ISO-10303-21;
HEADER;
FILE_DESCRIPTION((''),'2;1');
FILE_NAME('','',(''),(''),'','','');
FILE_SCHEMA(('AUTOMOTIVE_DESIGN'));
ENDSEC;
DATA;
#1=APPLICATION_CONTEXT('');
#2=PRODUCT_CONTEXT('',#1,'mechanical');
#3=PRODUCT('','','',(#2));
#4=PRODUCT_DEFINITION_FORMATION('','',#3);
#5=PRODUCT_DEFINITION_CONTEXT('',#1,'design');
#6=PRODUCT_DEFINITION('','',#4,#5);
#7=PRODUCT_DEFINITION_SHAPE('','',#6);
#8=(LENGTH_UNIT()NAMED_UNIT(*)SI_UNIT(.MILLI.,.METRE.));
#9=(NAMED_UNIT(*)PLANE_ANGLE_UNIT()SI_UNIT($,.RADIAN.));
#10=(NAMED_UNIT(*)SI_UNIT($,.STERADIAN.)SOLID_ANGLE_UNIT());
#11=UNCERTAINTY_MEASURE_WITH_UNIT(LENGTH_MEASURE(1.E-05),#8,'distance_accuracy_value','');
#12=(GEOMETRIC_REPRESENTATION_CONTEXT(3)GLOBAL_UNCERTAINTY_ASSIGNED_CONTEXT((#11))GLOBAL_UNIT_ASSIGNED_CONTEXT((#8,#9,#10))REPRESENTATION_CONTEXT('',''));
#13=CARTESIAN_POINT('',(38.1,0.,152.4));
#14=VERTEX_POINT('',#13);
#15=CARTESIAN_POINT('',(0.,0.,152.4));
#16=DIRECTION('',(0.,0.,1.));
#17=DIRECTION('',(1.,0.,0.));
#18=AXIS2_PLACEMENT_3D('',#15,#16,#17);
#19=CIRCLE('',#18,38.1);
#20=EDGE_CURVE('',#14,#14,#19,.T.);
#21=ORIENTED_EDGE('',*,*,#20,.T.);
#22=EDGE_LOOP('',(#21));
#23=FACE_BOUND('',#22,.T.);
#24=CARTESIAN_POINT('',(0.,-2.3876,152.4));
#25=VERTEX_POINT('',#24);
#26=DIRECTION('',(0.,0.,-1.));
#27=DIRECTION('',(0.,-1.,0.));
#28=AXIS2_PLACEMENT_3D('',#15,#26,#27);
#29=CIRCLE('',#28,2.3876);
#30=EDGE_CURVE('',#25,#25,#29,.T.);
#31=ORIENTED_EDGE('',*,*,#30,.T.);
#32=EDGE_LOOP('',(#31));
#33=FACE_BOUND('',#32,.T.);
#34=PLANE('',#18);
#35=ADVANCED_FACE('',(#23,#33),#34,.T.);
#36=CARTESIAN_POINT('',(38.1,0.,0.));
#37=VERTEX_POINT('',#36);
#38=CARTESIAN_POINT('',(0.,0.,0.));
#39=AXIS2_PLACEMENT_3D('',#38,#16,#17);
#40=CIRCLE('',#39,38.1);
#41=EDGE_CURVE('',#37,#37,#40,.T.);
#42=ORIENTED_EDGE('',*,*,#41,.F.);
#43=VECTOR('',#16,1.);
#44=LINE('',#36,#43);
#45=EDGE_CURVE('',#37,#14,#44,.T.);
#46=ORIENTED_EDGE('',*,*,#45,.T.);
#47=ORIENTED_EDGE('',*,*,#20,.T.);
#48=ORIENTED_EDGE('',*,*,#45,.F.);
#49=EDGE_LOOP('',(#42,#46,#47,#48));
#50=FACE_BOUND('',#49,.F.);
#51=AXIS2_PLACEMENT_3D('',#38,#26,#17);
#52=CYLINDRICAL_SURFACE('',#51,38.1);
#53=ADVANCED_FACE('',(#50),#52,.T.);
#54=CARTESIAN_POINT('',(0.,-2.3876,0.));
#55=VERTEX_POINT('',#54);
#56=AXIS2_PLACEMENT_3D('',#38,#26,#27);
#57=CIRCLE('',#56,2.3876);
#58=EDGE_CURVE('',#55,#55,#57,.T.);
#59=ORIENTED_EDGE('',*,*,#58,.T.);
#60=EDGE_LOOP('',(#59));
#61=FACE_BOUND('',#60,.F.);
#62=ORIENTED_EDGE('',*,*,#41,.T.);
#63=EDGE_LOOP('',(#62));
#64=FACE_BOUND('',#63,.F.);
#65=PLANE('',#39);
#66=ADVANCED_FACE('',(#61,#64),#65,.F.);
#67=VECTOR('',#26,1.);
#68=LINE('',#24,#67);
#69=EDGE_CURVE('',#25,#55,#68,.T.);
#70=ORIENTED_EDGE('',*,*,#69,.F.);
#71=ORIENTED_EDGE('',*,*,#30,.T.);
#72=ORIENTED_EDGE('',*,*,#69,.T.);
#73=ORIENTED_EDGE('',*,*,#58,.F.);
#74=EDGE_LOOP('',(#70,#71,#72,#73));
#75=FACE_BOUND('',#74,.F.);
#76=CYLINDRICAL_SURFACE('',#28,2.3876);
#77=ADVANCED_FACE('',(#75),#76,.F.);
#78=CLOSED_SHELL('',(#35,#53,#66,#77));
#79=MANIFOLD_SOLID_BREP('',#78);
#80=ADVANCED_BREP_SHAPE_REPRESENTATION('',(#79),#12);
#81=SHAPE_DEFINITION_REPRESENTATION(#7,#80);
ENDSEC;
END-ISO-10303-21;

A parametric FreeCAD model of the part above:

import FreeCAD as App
import Part
import Sketcher
Q = App.Units.Quantity

doc = App.newDocument("Part")
body = doc.addObject("PartDesign::Body", "Body")

# Sketch on XY plane
sketch1 = doc.addObject("Sketcher::SketchObject", "Sketch")
body.addObject(sketch1)
sketch1.AttachmentSupport = (doc.XY_Plane, [""])
sketch1.MapMode = "FlatFace"
sketch1.addGeometry(Part.Circle(App.Vector(0, 0, 0), App.Vector(0, 0, 1), 38), False)
sketch1.addConstraint(Sketcher.Constraint("Coincident", 0, 3, -1, 1))
sketch1.addConstraint(Sketcher.Constraint("Diameter", 0, Q("3 in")))
pad1 = doc.addObject("PartDesign::Pad", "Pad")
body.addObject(pad1)
pad1.Profile = sketch1
pad1.Length = Q("6 in")

# Sketch on XY plane
sketch2 = doc.addObject("Sketcher::SketchObject", "Sketch001")
body.addObject(sketch2)
sketch2.AttachmentSupport = (doc.XY_Plane, [""])
sketch2.MapMode = "FlatFace"
sketch2.AttachmentOffset = App.Placement(App.Vector(0, 0, 6 * 25.4), App.Rotation())
sketch2.addGeometry(Part.Circle(App.Vector(0, 0, 0), App.Vector(0, 0, 1), 2.4), False)
sketch2.addConstraint(Sketcher.Constraint("Coincident", 0, 3, -1, 1))
sketch2.addConstraint(Sketcher.Constraint("Diameter", 0, Q("0.188 in")))
doc.recompute()
hole = doc.addObject("PartDesign::Hole", "Hole")
body.addObject(hole)
hole.Profile = sketch2
hole.ThreadType = "None"
hole.Diameter = Q("0.188 in")
hole.DepthType = "ThroughAll"

doc.recompute()
